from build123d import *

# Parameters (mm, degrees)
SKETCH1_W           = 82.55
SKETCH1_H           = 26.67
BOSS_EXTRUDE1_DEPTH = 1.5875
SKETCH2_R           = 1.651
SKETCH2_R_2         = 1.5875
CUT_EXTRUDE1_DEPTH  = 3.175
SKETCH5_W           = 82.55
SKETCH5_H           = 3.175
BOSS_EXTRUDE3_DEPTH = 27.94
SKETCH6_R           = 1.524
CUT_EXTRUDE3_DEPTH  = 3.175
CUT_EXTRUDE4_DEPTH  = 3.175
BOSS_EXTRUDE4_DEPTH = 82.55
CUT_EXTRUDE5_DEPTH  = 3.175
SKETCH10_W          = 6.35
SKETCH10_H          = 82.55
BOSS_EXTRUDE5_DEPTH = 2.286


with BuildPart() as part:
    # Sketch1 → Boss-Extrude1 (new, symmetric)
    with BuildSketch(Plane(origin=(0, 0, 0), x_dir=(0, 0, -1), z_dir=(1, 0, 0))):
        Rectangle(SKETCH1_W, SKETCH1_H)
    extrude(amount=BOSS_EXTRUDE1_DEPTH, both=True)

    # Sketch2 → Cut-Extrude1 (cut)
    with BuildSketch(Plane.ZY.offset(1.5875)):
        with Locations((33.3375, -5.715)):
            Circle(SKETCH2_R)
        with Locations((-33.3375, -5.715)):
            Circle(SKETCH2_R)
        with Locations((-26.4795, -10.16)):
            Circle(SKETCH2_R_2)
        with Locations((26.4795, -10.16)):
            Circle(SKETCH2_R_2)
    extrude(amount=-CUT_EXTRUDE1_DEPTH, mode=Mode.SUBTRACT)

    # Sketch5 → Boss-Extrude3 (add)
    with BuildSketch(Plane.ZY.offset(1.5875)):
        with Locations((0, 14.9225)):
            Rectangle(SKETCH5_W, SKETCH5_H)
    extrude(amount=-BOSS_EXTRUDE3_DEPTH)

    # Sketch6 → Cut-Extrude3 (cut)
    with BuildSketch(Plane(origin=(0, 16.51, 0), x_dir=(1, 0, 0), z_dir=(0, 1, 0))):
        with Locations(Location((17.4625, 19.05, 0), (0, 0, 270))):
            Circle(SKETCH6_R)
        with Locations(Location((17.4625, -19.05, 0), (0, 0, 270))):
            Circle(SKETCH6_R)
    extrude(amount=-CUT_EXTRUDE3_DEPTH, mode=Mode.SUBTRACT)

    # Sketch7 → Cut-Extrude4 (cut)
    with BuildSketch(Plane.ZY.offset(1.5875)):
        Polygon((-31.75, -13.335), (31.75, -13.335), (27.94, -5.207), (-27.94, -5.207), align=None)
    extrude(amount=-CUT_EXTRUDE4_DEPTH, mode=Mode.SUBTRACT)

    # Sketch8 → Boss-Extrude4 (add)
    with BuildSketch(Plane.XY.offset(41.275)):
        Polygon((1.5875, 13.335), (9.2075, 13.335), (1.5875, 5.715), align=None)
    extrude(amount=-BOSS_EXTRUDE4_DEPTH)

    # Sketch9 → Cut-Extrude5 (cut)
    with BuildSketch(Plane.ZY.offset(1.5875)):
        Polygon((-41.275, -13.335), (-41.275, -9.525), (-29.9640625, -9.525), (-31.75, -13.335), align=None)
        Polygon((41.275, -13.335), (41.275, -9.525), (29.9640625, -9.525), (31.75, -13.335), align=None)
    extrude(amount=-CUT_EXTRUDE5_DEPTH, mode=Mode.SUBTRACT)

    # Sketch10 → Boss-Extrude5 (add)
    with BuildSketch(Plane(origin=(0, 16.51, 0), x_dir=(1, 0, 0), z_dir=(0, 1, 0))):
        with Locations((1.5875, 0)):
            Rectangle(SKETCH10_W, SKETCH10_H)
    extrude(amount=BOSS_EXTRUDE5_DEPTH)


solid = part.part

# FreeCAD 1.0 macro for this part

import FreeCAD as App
import Part
import Sketcher
from FreeCAD import Vector
Q = App.Units.Quantity


def add_polygon(sketch, points):
    """Adds a closed chain of lines whose ends are joined by coincident constraints."""
    first, n = sketch.GeometryCount, len(points)
    for a, b in zip(points, points[1:] + points[:1]):
        sketch.addGeometry(Part.LineSegment(App.Vector(*a, 0), App.Vector(*b, 0)), False)
    for i in range(n):
        sketch.addConstraint(Sketcher.Constraint("Coincident", first + i, 2, first + (i + 1) % n, 1))

doc = App.newDocument("Part")
body = doc.addObject("PartDesign::Body", "Body")

# Sketch on YZ plane
sketch1 = doc.addObject("Sketcher::SketchObject", "Sketch")
body.addObject(sketch1)
sketch1.AttachmentSupport = (doc.YZ_Plane, [""])
sketch1.MapMode = "FlatFace"
add_polygon(sketch1, [(13, 41), (-13, 41), (-13, -41), (13, -41)])  # lines 0-3
sketch1.addConstraint(Sketcher.Constraint("Horizontal", 0))
sketch1.addConstraint(Sketcher.Constraint("Vertical", 1))
sketch1.addConstraint(Sketcher.Constraint("Horizontal", 2))
sketch1.addConstraint(Sketcher.Constraint("Vertical", 3))
sketch1.addConstraint(Sketcher.Constraint("Symmetric", 0, 2, 2, 2, -1, 1))
sketch1.addConstraint(Sketcher.Constraint("DistanceX", 0, 2, 0, 1, Q("1.05 in")))
sketch1.addConstraint(Sketcher.Constraint("DistanceY", 1, 2, 1, 1, Q("3.25 in")))
pad1 = doc.addObject("PartDesign::Pad", "Pad")
body.addObject(pad1)
pad1.Profile = sketch1
pad1.Length = Q("0.125 in")
pad1.Midplane = True

# Sketch on YZ plane
sketch2 = doc.addObject("Sketcher::SketchObject", "Sketch001")
body.addObject(sketch2)
sketch2.AttachmentSupport = (doc.YZ_Plane, [""])
sketch2.MapMode = "FlatFace"
sketch2.AttachmentOffset = App.Placement(Vector(0, 0, -0.0625 * 25.4), App.Rotation())
sketch2.addGeometry(Part.Circle(Vector(-5.7, 33.3, 0), Vector(0, 0, 1), 1.7), False)
sketch2.addGeometry(Part.Circle(Vector(-5.7, -33.3, 0), Vector(0, 0, 1), 1.7), False)
sketch2.addGeometry(Part.Circle(Vector(-10.2, -26.5, 0), Vector(0, 0, 1), 1.6), False)
sketch2.addGeometry(Part.Circle(Vector(-10.2, 26.5, 0), Vector(0, 0, 1), 1.6), False)
sketch2.addConstraint(Sketcher.Constraint("Equal", 0, 1))
sketch2.addConstraint(Sketcher.Constraint("Equal", 2, 3))
sketch2.addConstraint(Sketcher.Constraint("Symmetric", 0, 3, 1, 3, -1))
sketch2.addConstraint(Sketcher.Constraint("Symmetric", 2, 3, 3, 3, -1))
sketch2.addConstraint(Sketcher.Constraint("Diameter", 0, Q("0.13 in")))
sketch2.addConstraint(Sketcher.Constraint("Diameter", 2, Q("0.125 in")))
sketch2.addConstraint(Sketcher.Constraint("DistanceX", 2, 3, -1, 1, Q("0.4 in")))
sketch2.addConstraint(Sketcher.Constraint("DistanceY", 1, 3, 2, 3, Q("0.27 in")))
sketch2.addConstraint(Sketcher.Constraint("DistanceX", 0, 3, -1, 1, Q("0.225 in")))
sketch2.addConstraint(Sketcher.Constraint("DistanceY", -1, 1, 0, 3, Q("1.3125 in")))
pocket1 = doc.addObject("PartDesign::Pocket", "Pocket")
body.addObject(pocket1)
pocket1.Profile = sketch2
pocket1.Length = Q("0.125 in")
pocket1.Reversed = True

# Sketch on YZ plane
sketch3 = doc.addObject("Sketcher::SketchObject", "Sketch002")
body.addObject(sketch3)
sketch3.AttachmentSupport = (doc.YZ_Plane, [""])
sketch3.MapMode = "FlatFace"
sketch3.AttachmentOffset = App.Placement(Vector(0, 0, -0.0625 * 25.4), App.Rotation())
add_polygon(sketch3, [(16.5, -41.3), (13.3, -41.3), (13.3, 41.3), (16.5, 41.3)])  # lines 0-3
sketch3.addConstraint(Sketcher.Constraint("Horizontal", 0))
sketch3.addConstraint(Sketcher.Constraint("Vertical", 1))
sketch3.addConstraint(Sketcher.Constraint("Horizontal", 2))
sketch3.addConstraint(Sketcher.Constraint("Vertical", 3))
sketch3.addConstraint(Sketcher.Constraint("DistanceY", 1, 1, 1, 2, Q("3.25 in")))
sketch3.addConstraint(Sketcher.Constraint("DistanceX", 0, 2, 0, 1, Q("0.125 in")))
sketch3.addConstraint(Sketcher.Constraint("DistanceX", -1, 1, 2, 2, Q("0.65 in")))
sketch3.addConstraint(Sketcher.Constraint("DistanceY", 0, 2, -1, 1, Q("1.625 in")))
pad2 = doc.addObject("PartDesign::Pad", "Pad001")
body.addObject(pad2)
pad2.Profile = sketch3
pad2.Length = Q("1.1 in")

# Sketch on XZ plane
sketch4 = doc.addObject("Sketcher::SketchObject", "Sketch003")
body.addObject(sketch4)
sketch4.AttachmentSupport = (doc.XZ_Plane, [""])
sketch4.MapMode = "FlatFace"
sketch4.AttachmentOffset = App.Placement(Vector(0, 0, -0.65 * 25.4), App.Rotation())
sketch4.addGeometry(Part.Circle(Vector(17.5, -19.1, 0), Vector(0, 0, 1), 1.5), False)
sketch4.addGeometry(Part.Circle(Vector(17.5, 19.1, 0), Vector(0, 0, 1), 1.5), False)
sketch4.addConstraint(Sketcher.Constraint("Equal", 0, 1))
sketch4.addConstraint(Sketcher.Constraint("Symmetric", 0, 3, 1, 3, -1))
sketch4.addConstraint(Sketcher.Constraint("Diameter", 0, Q("0.12 in")))
sketch4.addConstraint(Sketcher.Constraint("DistanceY", 0, 3, 1, 3, Q("1.5 in")))
sketch4.addConstraint(Sketcher.Constraint("DistanceX", -1, 1, 0, 3, Q("0.6875 in")))
pocket2 = doc.addObject("PartDesign::Pocket", "Pocket001")
body.addObject(pocket2)
pocket2.Profile = sketch4
pocket2.Length = Q("0.125 in")
pocket2.Reversed = True

# Sketch on YZ plane
sketch5 = doc.addObject("Sketcher::SketchObject", "Sketch004")
body.addObject(sketch5)
sketch5.AttachmentSupport = (doc.YZ_Plane, [""])
sketch5.MapMode = "FlatFace"
sketch5.AttachmentOffset = App.Placement(Vector(0, 0, -0.0625 * 25.4), App.Rotation())
add_polygon(sketch5, [(-13, -32), (-13, 32), (-5, 28), (-5, -28)])  # lines 0-3
sketch5.addConstraint(Sketcher.Constraint("Vertical", 0))
sketch5.addConstraint(Sketcher.Constraint("Vertical", 2))
sketch5.addConstraint(Sketcher.Constraint("Equal", 1, 3))
sketch5.addConstraint(Sketcher.Constraint("DistanceY", 0, 1, 0, 2, Q("2.5 in")))
sketch5.addConstraint(Sketcher.Constraint("DistanceY", 2, 2, 2, 1, Q("2.2 in")))
sketch5.addConstraint(Sketcher.Constraint("DistanceY", -1, 1, 1, 2, Q("1.1 in")))
sketch5.addConstraint(Sketcher.Constraint("DistanceX", 0, 2, 1, 2, Q("0.32 in")))
sketch5.addConstraint(Sketcher.Constraint("DistanceX", 0, 2, -1, 1, Q("0.525 in")))
pocket3 = doc.addObject("PartDesign::Pocket", "Pocket002")
body.addObject(pocket3)
pocket3.Profile = sketch5
pocket3.Length = Q("0.125 in")
pocket3.Reversed = True

# Sketch on XY plane
sketch6 = doc.addObject("Sketcher::SketchObject", "Sketch005")
body.addObject(sketch6)
sketch6.AttachmentSupport = (doc.XY_Plane, [""])
sketch6.MapMode = "FlatFace"
sketch6.AttachmentOffset = App.Placement(Vector(0, 0, 1.625 * 25.4), App.Rotation())
add_polygon(sketch6, [(9, 13), (2, 13), (2, 6)])  # lines 0-2
sketch6.addConstraint(Sketcher.Constraint("Horizontal", 0))
sketch6.addConstraint(Sketcher.Constraint("Vertical", 1))
sketch6.addConstraint(Sketcher.Constraint("Equal", 0, 1))
sketch6.addConstraint(Sketcher.Constraint("DistanceX", 0, 2, 0, 1, Q("0.3 in")))
sketch6.addConstraint(Sketcher.Constraint("DistanceX", -1, 1, 0, 2, Q("0.0625 in")))
sketch6.addConstraint(Sketcher.Constraint("DistanceY", -1, 1, 0, 2, Q("0.525 in")))
pad3 = doc.addObject("PartDesign::Pad", "Pad002")
body.addObject(pad3)
pad3.Profile = sketch6
pad3.Length = Q("3.25 in")
pad3.Reversed = True

# Sketch on YZ plane
sketch7 = doc.addObject("Sketcher::SketchObject", "Sketch006")
body.addObject(sketch7)
sketch7.AttachmentSupport = (doc.YZ_Plane, [""])
sketch7.MapMode = "FlatFace"
sketch7.AttachmentOffset = App.Placement(Vector(0, 0, -0.0625 * 25.4), App.Rotation())
add_polygon(sketch7, [(-9.5, -41.3), (-13.3, -41.3), (-13.3, -31.8), (-9.5, -30)])  # lines 0-3
add_polygon(sketch7, [(-13.3, 41.3), (-9.5, 41.3), (-9.5, 30), (-13.3, 31.8)])  # lines 4-7
sketch7.addConstraint(Sketcher.Constraint("Horizontal", 0))
sketch7.addConstraint(Sketcher.Constraint("Vertical", 1))
sketch7.addConstraint(Sketcher.Constraint("Vertical", 3))
sketch7.addConstraint(Sketcher.Constraint("Horizontal", 4))
sketch7.addConstraint(Sketcher.Constraint("Vertical", 5))
sketch7.addConstraint(Sketcher.Constraint("Vertical", 7))
sketch7.addConstraint(Sketcher.Constraint("Symmetric", 3, 2, 4, 2, -1))
sketch7.addConstraint(Sketcher.Constraint("Symmetric", 1, 2, 6, 2, -1))
sketch7.addConstraint(Sketcher.Constraint("Equal", 3, 5))
sketch7.addConstraint(Sketcher.Constraint("DistanceX", 0, 2, 0, 1, Q("0.15 in")))
sketch7.addConstraint(Sketcher.Constraint("DistanceY", 1, 2, 6, 2, Q("2.5 in")))
sketch7.addConstraint(Sketcher.Constraint("DistanceY", 1, 1, 1, 2, Q("0.375 in")))
sketch7.addConstraint(Sketcher.Constraint("DistanceX", 0, 2, -1, 1, Q("0.525 in")))
sketch7.addConstraint(Sketcher.Constraint("DistanceY", 2, 2, 5, 2, Q("2.359375 in")))
pocket4 = doc.addObject("PartDesign::Pocket", "Pocket003")
body.addObject(pocket4)
pocket4.Profile = sketch7
pocket4.Length = Q("0.125 in")
pocket4.Reversed = True

# Sketch on XZ plane
sketch8 = doc.addObject("Sketcher::SketchObject", "Sketch007")
body.addObject(sketch8)
sketch8.AttachmentSupport = (doc.XZ_Plane, [""])
sketch8.MapMode = "FlatFace"
sketch8.AttachmentOffset = App.Placement(Vector(0, 0, -0.65 * 25.4), App.Rotation())
add_polygon(sketch8, [(-2, -41), (-2, 41), (5, 41), (5, -41)])  # lines 0-3
sketch8.addConstraint(Sketcher.Constraint("Vertical", 0))
sketch8.addConstraint(Sketcher.Constraint("Horizontal", 1))
sketch8.addConstraint(Sketcher.Constraint("Vertical", 2))
sketch8.addConstraint(Sketcher.Constraint("Horizontal", 3))
sketch8.addConstraint(Sketcher.Constraint("DistanceX", 1, 1, 1, 2, Q("0.25 in")))
sketch8.addConstraint(Sketcher.Constraint("DistanceY", 0, 1, 0, 2, Q("3.25 in")))
sketch8.addConstraint(Sketcher.Constraint("DistanceX", 0, 2, -1, 1, Q("0.0625 in")))
sketch8.addConstraint(Sketcher.Constraint("DistanceY", -1, 1, 0, 2, Q("1.625 in")))
pad4 = doc.addObject("PartDesign::Pad", "Pad003")
body.addObject(pad4)
pad4.Profile = sketch8
pad4.Length = Q("0.09 in")
pad4.Reversed = True

doc.recompute()
